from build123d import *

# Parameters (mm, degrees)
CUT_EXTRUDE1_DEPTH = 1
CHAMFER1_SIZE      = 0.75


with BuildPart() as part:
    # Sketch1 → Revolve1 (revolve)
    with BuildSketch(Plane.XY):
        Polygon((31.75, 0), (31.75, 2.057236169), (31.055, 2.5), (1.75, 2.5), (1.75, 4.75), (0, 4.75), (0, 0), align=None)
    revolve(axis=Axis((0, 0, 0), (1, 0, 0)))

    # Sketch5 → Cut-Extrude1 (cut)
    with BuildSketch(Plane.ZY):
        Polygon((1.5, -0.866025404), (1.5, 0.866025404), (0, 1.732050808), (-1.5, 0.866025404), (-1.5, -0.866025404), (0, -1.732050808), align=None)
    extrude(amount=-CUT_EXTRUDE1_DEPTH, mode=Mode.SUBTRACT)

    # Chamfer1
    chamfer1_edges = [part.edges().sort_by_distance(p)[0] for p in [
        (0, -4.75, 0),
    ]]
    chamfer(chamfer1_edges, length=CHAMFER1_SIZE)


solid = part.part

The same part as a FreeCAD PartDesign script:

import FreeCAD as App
import Part
import Sketcher

V = App.Vector
Q = App.Units.Quantity


def edges_at(feature, points):
    """Names of the edges that pass closest to the given points."""
    edges = feature.Shape.Edges
    near = lambda p: min(range(len(edges)), key=lambda i: edges[i].distToShape(Part.Vertex(*p))[0])
    return sorted({f"Edge{near(p) + 1}" for p in points})

doc = App.newDocument("Part")
body = doc.addObject("PartDesign::Body", "Body")

# Sketch on XY plane
sketch1 = body.newObject("Sketcher::SketchObject", "Sketch")
sketch1.AttachmentSupport = (doc.getObject("XY_Plane"), [""])
sketch1.MapMode = "FlatFace"
sketch1.addGeometry(Part.LineSegment(V(31.8, 0, 0), V(31.8, 2.1, 0)), False)
sketch1.addGeometry(Part.LineSegment(V(31.8, 2.1, 0), V(31.1, 2.5, 0)), False)
sketch1.addGeometry(Part.LineSegment(V(31.1, 2.5, 0), V(1.8, 2.5, 0)), False)
sketch1.addGeometry(Part.LineSegment(V(1.8, 2.5, 0), V(1.8, 4.8, 0)), False)
sketch1.addGeometry(Part.LineSegment(V(1.8, 4.8, 0), V(0, 4.8, 0)), False)
sketch1.addGeometry(Part.LineSegment(V(0, 4.8, 0), V(0, 0, 0)), False)
sketch1.addGeometry(Part.LineSegment(V(0, 0, 0), V(31.8, 0, 0)), False)
sketch1.addConstraint(Sketcher.Constraint("Coincident", 0, 2, 1, 1))
sketch1.addConstraint(Sketcher.Constraint("Coincident", 1, 2, 2, 1))
sketch1.addConstraint(Sketcher.Constraint("Coincident", 2, 2, 3, 1))
sketch1.addConstraint(Sketcher.Constraint("Coincident", 3, 2, 4, 1))
sketch1.addConstraint(Sketcher.Constraint("Coincident", 4, 2, 5, 1))
sketch1.addConstraint(Sketcher.Constraint("Coincident", 5, 2, 6, 1))
sketch1.addConstraint(Sketcher.Constraint("Coincident", 6, 2, 0, 1))
sketch1.addConstraint(Sketcher.Constraint("Vertical", 0))
sketch1.addConstraint(Sketcher.Constraint("Horizontal", 2))
sketch1.addConstraint(Sketcher.Constraint("Vertical", 3))
sketch1.addConstraint(Sketcher.Constraint("Horizontal", 4))
sketch1.addConstraint(Sketcher.Constraint("Vertical", 5))
sketch1.addConstraint(Sketcher.Constraint("Horizontal", 6))
sketch1.addConstraint(Sketcher.Constraint("Coincident", 5, 2, -1, 1))
sketch1.addConstraint(Sketcher.Constraint("Angle", 1, Q("147.5 deg")))
sketch1.addConstraint(Sketcher.Constraint("DistanceX", 2, 2, 0, 2, Q("30 mm")))
sketch1.addConstraint(Sketcher.Constraint("DistanceX", 4, 2, 4, 1, Q("1.75 mm")))
sketch1.addConstraint(Sketcher.Constraint("DistanceY", 3, 1, 3, 2, Q("2.25 mm")))
sketch1.addConstraint(Sketcher.Constraint("DistanceY", 5, 2, 5, 1, Q("4.75 mm")))
sketch1.addConstraint(Sketcher.Constraint("DistanceX", 2, 2, 2, 1, Q("29.305 mm")))
revolution = body.newObject("PartDesign::Revolution", "Revolution")
revolution.Profile = sketch1
revolution.ReferenceAxis = (sketch1, ["H_Axis"])
revolution.Angle = 360

# Sketch on YZ plane
sketch2 = body.newObject("Sketcher::SketchObject", "Sketch001")
sketch2.AttachmentSupport = (doc.getObject("YZ_Plane"), [""])
sketch2.MapMode = "FlatFace"
sketch2.addGeometry(Part.LineSegment(V(-0.9, 1.5, 0), V(0.9, 1.5, 0)), False)
sketch2.addGeometry(Part.LineSegment(V(0.9, 1.5, 0), V(1.7, 0, 0)), False)
sketch2.addGeometry(Part.LineSegment(V(1.7, 0, 0), V(0.9, -1.5, 0)), False)
sketch2.addGeometry(Part.LineSegment(V(0.9, -1.5, 0), V(-0.9, -1.5, 0)), False)
sketch2.addGeometry(Part.LineSegment(V(-0.9, -1.5, 0), V(-1.7, 0, 0)), False)
sketch2.addGeometry(Part.LineSegment(V(-1.7, 0, 0), V(-0.9, 1.5, 0)), False)
sketch2.addConstraint(Sketcher.Constraint("Coincident", 0, 2, 1, 1))
sketch2.addConstraint(Sketcher.Constraint("Coincident", 1, 2, 2, 1))
sketch2.addConstraint(Sketcher.Constraint("Coincident", 2, 2, 3, 1))
sketch2.addConstraint(Sketcher.Constraint("Coincident", 3, 2, 4, 1))
sketch2.addConstraint(Sketcher.Constraint("Coincident", 4, 2, 5, 1))
sketch2.addConstraint(Sketcher.Constraint("Coincident", 5, 2, 0, 1))
sketch2.addConstraint(Sketcher.Constraint("Horizontal", 0))
sketch2.addConstraint(Sketcher.Constraint("Horizontal", 3))
sketch2.addConstraint(Sketcher.Constraint("Symmetric", 0, 2, 3, 2, -1, 1))
sketch2.addConstraint(Sketcher.Constraint("Symmetric", 1, 2, 4, 2, -1, 1))
sketch2.addConstraint(Sketcher.Constraint("PointOnObject", 1, 2, -1))
sketch2.addConstraint(Sketcher.Constraint("Parallel", 2, 5))
sketch2.addConstraint(Sketcher.Constraint("Vertical", 0, 2, 2, 2))
sketch2.addConstraint(Sketcher.Constraint("Angle", 1, Q("-60 deg")))
sketch2.addConstraint(Sketcher.Constraint("DistanceY", 2, 2, 0, 2, Q("3 mm")))
sketch2.addConstraint(Sketcher.Constraint("DistanceX", 0, 1, 0, 2, Q("1.732051 mm")))
pocket1 = body.newObject("PartDesign::Pocket", "Pocket")
pocket1.Profile = sketch2
pocket1.Length = 1
pocket1.Reversed = True
doc.recompute()

chamfer = body.newObject("PartDesign::Chamfer", "Chamfer")
chamfer.Base = (pocket1, edges_at(pocket1, [(0, -4.75, 0)]))
chamfer.Size = 0.75

doc.recompute()
